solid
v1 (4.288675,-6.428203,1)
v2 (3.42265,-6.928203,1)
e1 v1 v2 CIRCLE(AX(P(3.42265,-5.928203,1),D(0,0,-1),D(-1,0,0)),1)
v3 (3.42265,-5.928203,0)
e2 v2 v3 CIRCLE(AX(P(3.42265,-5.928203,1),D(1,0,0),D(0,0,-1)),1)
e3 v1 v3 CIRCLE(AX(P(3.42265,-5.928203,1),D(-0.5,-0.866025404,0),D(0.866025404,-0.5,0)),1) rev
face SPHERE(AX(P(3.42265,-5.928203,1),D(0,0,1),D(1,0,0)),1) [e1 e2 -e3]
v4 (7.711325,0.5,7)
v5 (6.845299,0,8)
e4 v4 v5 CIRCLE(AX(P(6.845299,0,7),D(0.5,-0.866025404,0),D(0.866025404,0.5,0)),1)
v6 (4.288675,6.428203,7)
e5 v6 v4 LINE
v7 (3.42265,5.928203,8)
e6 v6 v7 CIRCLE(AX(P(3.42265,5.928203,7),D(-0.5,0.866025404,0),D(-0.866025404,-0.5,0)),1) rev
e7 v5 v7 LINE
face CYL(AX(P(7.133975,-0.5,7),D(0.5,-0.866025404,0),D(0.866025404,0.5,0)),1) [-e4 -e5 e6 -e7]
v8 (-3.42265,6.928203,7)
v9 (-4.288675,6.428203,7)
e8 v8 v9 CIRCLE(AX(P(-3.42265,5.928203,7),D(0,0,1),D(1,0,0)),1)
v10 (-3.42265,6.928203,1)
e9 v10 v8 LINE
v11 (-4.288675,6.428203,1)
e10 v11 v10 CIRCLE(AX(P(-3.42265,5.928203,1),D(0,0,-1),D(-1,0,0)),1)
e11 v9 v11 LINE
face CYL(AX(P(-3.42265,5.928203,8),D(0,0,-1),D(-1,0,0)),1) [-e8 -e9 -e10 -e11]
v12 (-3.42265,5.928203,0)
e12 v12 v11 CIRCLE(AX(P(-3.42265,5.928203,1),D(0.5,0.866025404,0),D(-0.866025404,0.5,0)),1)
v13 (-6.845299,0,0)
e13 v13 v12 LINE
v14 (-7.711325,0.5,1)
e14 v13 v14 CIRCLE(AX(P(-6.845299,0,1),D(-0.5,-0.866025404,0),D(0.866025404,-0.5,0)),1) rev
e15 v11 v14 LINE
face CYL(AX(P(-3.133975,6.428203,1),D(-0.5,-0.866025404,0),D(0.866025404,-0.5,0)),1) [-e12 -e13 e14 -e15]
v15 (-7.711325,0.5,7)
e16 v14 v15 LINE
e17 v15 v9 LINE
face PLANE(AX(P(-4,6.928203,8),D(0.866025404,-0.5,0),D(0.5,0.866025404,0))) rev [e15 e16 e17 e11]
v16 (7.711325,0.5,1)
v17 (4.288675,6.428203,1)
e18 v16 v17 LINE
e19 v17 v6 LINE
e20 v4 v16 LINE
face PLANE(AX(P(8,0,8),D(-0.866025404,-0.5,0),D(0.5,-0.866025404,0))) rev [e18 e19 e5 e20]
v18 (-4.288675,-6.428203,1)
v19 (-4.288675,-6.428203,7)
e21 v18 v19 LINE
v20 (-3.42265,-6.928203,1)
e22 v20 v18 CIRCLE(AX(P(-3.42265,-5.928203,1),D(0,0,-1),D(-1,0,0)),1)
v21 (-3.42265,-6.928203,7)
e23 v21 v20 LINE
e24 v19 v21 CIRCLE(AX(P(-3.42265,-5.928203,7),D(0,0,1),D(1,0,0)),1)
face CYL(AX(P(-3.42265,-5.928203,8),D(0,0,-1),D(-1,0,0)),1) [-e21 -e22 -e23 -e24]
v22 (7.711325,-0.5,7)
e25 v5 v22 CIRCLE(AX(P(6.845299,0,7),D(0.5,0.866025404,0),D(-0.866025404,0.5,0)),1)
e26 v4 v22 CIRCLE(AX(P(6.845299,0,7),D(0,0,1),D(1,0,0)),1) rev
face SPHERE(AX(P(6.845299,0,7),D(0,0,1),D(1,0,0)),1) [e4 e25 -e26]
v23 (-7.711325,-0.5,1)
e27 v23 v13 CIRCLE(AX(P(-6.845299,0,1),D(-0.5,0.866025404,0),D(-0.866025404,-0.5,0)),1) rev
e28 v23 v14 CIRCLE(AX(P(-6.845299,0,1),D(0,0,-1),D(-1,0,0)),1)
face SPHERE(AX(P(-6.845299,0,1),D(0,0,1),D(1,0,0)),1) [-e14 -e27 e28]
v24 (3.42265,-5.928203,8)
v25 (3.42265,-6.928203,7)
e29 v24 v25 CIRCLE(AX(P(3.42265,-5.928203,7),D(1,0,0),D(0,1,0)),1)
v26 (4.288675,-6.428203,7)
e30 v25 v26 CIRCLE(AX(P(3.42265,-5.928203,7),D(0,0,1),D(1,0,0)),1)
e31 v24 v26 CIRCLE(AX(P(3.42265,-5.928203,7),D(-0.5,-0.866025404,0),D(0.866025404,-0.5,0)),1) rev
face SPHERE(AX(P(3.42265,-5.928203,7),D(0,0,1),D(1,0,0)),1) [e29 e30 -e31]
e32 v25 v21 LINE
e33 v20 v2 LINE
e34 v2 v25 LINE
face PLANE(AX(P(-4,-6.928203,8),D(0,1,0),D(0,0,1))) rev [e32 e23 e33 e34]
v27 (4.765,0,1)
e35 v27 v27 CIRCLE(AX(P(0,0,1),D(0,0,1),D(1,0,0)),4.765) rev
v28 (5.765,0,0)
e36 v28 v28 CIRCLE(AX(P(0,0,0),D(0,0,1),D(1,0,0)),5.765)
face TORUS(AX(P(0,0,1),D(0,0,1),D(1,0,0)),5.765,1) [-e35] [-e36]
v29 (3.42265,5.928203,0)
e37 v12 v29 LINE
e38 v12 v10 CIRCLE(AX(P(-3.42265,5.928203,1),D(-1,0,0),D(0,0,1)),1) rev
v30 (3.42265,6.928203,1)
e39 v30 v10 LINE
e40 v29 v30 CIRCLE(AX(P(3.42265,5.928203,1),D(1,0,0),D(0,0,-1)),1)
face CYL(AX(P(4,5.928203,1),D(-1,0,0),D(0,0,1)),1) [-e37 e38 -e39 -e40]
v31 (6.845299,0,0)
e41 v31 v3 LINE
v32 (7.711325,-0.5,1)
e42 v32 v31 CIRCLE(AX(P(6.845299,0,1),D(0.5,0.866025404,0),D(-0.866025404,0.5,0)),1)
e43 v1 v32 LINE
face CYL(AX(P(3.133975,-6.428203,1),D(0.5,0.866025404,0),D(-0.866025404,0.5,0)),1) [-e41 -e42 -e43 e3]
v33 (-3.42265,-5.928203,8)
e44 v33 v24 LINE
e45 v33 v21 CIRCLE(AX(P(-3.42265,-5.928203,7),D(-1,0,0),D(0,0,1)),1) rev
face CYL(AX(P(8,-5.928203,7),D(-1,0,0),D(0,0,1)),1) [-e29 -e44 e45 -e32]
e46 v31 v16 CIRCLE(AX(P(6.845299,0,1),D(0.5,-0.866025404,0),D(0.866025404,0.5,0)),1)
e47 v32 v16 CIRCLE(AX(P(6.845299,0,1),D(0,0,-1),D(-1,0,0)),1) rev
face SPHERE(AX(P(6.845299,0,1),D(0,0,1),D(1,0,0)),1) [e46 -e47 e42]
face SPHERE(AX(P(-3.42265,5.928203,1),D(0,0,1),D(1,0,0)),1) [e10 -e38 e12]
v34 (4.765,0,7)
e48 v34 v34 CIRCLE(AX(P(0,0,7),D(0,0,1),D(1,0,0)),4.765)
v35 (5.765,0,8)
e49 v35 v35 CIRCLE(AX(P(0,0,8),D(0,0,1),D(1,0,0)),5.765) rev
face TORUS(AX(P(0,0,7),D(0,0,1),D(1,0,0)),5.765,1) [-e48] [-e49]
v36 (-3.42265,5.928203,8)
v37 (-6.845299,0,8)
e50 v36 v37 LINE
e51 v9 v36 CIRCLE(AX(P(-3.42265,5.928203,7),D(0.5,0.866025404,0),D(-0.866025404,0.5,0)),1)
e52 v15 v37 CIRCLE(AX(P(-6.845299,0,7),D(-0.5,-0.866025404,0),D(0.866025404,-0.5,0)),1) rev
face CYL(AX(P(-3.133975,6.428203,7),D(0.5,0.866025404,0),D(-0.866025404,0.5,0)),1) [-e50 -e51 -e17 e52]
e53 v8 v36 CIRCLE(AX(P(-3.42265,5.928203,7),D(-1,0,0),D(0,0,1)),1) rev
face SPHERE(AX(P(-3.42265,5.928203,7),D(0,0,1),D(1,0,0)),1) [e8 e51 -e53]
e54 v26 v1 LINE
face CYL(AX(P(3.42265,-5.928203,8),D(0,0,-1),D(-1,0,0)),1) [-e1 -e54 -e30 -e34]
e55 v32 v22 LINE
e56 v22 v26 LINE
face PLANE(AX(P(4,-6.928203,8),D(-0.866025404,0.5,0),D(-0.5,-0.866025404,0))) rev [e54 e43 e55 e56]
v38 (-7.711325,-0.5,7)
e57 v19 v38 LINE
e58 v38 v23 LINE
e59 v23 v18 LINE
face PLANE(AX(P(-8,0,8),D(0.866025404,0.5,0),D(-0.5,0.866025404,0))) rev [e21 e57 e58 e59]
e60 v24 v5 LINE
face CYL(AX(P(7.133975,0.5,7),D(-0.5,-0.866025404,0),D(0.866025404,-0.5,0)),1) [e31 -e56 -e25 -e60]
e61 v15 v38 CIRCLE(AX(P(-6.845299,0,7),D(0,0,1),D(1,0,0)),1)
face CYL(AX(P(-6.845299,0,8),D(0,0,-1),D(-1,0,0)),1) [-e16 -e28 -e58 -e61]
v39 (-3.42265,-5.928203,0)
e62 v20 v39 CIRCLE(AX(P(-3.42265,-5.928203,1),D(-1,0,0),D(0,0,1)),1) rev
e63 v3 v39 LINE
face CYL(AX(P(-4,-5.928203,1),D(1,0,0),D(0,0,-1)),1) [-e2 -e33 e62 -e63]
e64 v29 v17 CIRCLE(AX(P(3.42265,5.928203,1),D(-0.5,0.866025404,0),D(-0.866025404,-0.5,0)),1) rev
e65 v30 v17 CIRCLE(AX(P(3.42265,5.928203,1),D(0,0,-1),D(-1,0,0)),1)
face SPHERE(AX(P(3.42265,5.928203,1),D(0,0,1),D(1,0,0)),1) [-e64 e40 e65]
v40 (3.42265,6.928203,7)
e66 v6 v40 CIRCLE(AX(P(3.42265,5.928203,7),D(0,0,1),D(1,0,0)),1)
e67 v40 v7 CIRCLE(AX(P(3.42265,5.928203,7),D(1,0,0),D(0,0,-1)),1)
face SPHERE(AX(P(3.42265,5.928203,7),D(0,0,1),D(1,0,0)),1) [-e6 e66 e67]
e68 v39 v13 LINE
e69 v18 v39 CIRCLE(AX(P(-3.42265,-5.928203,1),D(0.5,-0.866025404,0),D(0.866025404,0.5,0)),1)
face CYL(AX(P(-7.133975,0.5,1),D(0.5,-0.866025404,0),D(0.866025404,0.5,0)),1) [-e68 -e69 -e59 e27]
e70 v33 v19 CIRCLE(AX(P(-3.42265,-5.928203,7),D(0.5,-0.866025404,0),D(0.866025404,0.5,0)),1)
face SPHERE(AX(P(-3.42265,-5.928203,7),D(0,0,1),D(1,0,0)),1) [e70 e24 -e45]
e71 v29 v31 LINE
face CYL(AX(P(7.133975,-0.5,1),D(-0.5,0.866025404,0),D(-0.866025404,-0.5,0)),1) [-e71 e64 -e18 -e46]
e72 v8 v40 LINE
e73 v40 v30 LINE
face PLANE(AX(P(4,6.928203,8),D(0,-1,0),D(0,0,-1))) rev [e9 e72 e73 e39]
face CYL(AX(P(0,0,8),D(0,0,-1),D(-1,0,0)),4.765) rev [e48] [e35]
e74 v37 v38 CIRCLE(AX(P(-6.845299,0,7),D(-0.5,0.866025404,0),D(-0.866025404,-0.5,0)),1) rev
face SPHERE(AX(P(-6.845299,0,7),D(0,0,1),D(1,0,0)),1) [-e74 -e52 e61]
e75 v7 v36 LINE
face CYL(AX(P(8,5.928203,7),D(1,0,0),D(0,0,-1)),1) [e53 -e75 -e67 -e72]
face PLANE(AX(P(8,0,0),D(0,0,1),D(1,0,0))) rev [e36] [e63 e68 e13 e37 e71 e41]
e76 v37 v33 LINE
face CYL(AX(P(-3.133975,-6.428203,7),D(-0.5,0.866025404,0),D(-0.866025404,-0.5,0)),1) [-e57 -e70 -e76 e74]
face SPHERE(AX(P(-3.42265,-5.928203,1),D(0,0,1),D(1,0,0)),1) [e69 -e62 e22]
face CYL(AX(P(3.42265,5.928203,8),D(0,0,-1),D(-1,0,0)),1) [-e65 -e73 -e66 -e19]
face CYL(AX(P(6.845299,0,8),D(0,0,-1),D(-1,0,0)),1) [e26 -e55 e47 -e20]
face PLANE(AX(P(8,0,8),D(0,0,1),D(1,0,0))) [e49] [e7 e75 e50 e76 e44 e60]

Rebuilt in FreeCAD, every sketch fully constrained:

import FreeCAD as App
import Part
import Sketcher
from FreeCAD import Vector
Q = App.Units.Quantity

doc = App.newDocument("Part")
params = doc.addObject("Spreadsheet::Sheet", "Params")
for row, (alias, value) in enumerate([
    ("sketch1_diameter", "9.53 mm"),
    ("sketch1_width", "8 mm"),
    ("sketch1_length", "8 mm"),
    ("pad1_length", "8 mm"),
    ("fillet_radius", "1 mm"),
], start=1):
    params.set(f"A{row}", alias)
    params.set(f"B{row}", "=" + value)
    params.setAlias(f"B{row}", alias)

body = doc.addObject("PartDesign::Body", "Body")

# Sketch on XY plane
sketch1 = body.newObject("Sketcher::SketchObject", "Sketch")
sketch1.AttachmentSupport = (doc.getObject("XY_Plane"), [""])
sketch1.MapMode = "FlatFace"
sketch1.addGeometry([
    Part.LineSegment(Vector(8, 0, 0), Vector(4, 6.928203, 0)),  # 0
    Part.LineSegment(Vector(4, 6.928203, 0), Vector(-4, 6.928203, 0)),  # 1
    Part.LineSegment(Vector(-4, 6.928203, 0), Vector(-8, 0, 0)),  # 2
    Part.LineSegment(Vector(-8, 0, 0), Vector(-4, -6.928203, 0)),  # 3
    Part.LineSegment(Vector(-4, -6.928203, 0), Vector(4, -6.928203, 0)),  # 4
    Part.LineSegment(Vector(4, -6.928203, 0), Vector(8, 0, 0)),  # 5
    Part.Circle(Vector(0, 0, 0), Vector(0, 0, 1), 4.765),  # 6
], False)
sketch1.addConstraint([
    Sketcher.Constraint("Coincident", 0, 2, 1, 1),
    Sketcher.Constraint("Coincident", 1, 2, 2, 1),
    Sketcher.Constraint("Coincident", 2, 2, 3, 1),
    Sketcher.Constraint("Coincident", 3, 2, 4, 1),
    Sketcher.Constraint("Coincident", 4, 2, 5, 1),
    Sketcher.Constraint("Coincident", 5, 2, 0, 1),
    Sketcher.Constraint("Horizontal", 1),
    Sketcher.Constraint("Horizontal", 4),
    Sketcher.Constraint("Coincident", 6, 3, -1, 1),
    Sketcher.Constraint("Symmetric", 0, 2, 3, 2, -1, 1),
    Sketcher.Constraint("Symmetric", 2, 2, 5, 2, -1, 1),
    Sketcher.Constraint("PointOnObject", 2, 2, -1),
    Sketcher.Constraint("Parallel", 2, 5),
    Sketcher.Constraint("Vertical", 1, 2, 3, 2),
    Sketcher.Constraint("Diameter", 6, Q("9.53 mm")),
    Sketcher.Constraint("DistanceX", 1, 2, 1, 1, Q("8 mm")),
    Sketcher.Constraint("Angle", 0, Q("120 deg")),
    Sketcher.Constraint("Distance", 0, Q("8 mm")),
])
sketch1.setExpression("Constraints[14]", "Params.sketch1_diameter")
sketch1.setExpression("Constraints[15]", "Params.sketch1_width")
sketch1.setExpression("Constraints[17]", "Params.sketch1_length")
pad1 = body.newObject("PartDesign::Pad", "Pad")
pad1.Profile = sketch1
pad1.setExpression("Length", "Params.pad1_length")
doc.recompute()

fillet = body.newObject("PartDesign::Fillet", "Fillet")
fillet.Base = (pad1, ["Edge1"])
fillet.UseAllEdges = True
fillet.setExpression("Radius", "Params.fillet_radius")

doc.recompute()
